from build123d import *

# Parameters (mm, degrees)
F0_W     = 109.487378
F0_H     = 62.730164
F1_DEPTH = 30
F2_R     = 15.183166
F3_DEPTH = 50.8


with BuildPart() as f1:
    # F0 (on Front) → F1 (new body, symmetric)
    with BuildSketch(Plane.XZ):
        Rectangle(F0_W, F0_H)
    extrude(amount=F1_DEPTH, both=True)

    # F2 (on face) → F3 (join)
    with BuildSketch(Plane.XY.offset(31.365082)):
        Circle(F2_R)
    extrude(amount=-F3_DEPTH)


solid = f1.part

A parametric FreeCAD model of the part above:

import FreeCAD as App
import Part
import Sketcher

V = App.Vector


def add_polygon(sketch, points):
    """Adds a closed chain of lines whose ends are joined by coincident constraints."""
    first, n = sketch.GeometryCount, len(points)
    for a, b in zip(points, points[1:] + points[:1]):
        sketch.addGeometry(Part.LineSegment(App.Vector(*a, 0), App.Vector(*b, 0)), False)
    for i in range(n):
        sketch.addConstraint(Sketcher.Constraint("Coincident", first + i, 2, first + (i + 1) % n, 1))

doc = App.newDocument("Part")
body = doc.addObject("PartDesign::Body", "Body")

# Sketch on XZ plane
sketch1 = body.newObject("Sketcher::SketchObject", "Sketch")
sketch1.AttachmentSupport = (doc.getObject("XZ_Plane"), [""])
sketch1.MapMode = "FlatFace"
add_polygon(sketch1, [(-55, 31), (-55, -31), (55, -31), (55, 31)])  # lines 0-3
sketch1.addConstraint([
    Sketcher.Constraint("Vertical", 0),
    Sketcher.Constraint("Horizontal", 1),
    Sketcher.Constraint("Vertical", 2),
    Sketcher.Constraint("Horizontal", 3),
    Sketcher.Constraint("Symmetric", 0, 2, 2, 2, -1, 1),
    Sketcher.Constraint("DistanceX", 1, 1, 1, 2, 109.487378),
    Sketcher.Constraint("DistanceY", 0, 2, 0, 1, 62.730164),
])
pad1 = body.newObject("PartDesign::Pad", "Pad")
pad1.Profile = sketch1
pad1.Length = 60
pad1.Midplane = True

# Sketch on XY plane
sketch2 = body.newObject("Sketcher::SketchObject", "Sketch001")
sketch2.AttachmentSupport = (doc.getObject("XY_Plane"), [""])
sketch2.MapMode = "FlatFace"
sketch2.AttachmentOffset = App.Placement(V(0, 0, 31.365082), App.Rotation())
sketch2.addGeometry(Part.Circle(V(0, 0, 0), V(0, 0, 1), 15), False)
sketch2.addConstraint([
    Sketcher.Constraint("Coincident", 0, 3, -1, 1),
    Sketcher.Constraint("Diameter", 0, 30.366332),
])
pad2 = body.newObject("PartDesign::Pad", "Pad001")
pad2.Profile = sketch2
pad2.Length = 50.8
pad2.Reversed = True

doc.recompute()
